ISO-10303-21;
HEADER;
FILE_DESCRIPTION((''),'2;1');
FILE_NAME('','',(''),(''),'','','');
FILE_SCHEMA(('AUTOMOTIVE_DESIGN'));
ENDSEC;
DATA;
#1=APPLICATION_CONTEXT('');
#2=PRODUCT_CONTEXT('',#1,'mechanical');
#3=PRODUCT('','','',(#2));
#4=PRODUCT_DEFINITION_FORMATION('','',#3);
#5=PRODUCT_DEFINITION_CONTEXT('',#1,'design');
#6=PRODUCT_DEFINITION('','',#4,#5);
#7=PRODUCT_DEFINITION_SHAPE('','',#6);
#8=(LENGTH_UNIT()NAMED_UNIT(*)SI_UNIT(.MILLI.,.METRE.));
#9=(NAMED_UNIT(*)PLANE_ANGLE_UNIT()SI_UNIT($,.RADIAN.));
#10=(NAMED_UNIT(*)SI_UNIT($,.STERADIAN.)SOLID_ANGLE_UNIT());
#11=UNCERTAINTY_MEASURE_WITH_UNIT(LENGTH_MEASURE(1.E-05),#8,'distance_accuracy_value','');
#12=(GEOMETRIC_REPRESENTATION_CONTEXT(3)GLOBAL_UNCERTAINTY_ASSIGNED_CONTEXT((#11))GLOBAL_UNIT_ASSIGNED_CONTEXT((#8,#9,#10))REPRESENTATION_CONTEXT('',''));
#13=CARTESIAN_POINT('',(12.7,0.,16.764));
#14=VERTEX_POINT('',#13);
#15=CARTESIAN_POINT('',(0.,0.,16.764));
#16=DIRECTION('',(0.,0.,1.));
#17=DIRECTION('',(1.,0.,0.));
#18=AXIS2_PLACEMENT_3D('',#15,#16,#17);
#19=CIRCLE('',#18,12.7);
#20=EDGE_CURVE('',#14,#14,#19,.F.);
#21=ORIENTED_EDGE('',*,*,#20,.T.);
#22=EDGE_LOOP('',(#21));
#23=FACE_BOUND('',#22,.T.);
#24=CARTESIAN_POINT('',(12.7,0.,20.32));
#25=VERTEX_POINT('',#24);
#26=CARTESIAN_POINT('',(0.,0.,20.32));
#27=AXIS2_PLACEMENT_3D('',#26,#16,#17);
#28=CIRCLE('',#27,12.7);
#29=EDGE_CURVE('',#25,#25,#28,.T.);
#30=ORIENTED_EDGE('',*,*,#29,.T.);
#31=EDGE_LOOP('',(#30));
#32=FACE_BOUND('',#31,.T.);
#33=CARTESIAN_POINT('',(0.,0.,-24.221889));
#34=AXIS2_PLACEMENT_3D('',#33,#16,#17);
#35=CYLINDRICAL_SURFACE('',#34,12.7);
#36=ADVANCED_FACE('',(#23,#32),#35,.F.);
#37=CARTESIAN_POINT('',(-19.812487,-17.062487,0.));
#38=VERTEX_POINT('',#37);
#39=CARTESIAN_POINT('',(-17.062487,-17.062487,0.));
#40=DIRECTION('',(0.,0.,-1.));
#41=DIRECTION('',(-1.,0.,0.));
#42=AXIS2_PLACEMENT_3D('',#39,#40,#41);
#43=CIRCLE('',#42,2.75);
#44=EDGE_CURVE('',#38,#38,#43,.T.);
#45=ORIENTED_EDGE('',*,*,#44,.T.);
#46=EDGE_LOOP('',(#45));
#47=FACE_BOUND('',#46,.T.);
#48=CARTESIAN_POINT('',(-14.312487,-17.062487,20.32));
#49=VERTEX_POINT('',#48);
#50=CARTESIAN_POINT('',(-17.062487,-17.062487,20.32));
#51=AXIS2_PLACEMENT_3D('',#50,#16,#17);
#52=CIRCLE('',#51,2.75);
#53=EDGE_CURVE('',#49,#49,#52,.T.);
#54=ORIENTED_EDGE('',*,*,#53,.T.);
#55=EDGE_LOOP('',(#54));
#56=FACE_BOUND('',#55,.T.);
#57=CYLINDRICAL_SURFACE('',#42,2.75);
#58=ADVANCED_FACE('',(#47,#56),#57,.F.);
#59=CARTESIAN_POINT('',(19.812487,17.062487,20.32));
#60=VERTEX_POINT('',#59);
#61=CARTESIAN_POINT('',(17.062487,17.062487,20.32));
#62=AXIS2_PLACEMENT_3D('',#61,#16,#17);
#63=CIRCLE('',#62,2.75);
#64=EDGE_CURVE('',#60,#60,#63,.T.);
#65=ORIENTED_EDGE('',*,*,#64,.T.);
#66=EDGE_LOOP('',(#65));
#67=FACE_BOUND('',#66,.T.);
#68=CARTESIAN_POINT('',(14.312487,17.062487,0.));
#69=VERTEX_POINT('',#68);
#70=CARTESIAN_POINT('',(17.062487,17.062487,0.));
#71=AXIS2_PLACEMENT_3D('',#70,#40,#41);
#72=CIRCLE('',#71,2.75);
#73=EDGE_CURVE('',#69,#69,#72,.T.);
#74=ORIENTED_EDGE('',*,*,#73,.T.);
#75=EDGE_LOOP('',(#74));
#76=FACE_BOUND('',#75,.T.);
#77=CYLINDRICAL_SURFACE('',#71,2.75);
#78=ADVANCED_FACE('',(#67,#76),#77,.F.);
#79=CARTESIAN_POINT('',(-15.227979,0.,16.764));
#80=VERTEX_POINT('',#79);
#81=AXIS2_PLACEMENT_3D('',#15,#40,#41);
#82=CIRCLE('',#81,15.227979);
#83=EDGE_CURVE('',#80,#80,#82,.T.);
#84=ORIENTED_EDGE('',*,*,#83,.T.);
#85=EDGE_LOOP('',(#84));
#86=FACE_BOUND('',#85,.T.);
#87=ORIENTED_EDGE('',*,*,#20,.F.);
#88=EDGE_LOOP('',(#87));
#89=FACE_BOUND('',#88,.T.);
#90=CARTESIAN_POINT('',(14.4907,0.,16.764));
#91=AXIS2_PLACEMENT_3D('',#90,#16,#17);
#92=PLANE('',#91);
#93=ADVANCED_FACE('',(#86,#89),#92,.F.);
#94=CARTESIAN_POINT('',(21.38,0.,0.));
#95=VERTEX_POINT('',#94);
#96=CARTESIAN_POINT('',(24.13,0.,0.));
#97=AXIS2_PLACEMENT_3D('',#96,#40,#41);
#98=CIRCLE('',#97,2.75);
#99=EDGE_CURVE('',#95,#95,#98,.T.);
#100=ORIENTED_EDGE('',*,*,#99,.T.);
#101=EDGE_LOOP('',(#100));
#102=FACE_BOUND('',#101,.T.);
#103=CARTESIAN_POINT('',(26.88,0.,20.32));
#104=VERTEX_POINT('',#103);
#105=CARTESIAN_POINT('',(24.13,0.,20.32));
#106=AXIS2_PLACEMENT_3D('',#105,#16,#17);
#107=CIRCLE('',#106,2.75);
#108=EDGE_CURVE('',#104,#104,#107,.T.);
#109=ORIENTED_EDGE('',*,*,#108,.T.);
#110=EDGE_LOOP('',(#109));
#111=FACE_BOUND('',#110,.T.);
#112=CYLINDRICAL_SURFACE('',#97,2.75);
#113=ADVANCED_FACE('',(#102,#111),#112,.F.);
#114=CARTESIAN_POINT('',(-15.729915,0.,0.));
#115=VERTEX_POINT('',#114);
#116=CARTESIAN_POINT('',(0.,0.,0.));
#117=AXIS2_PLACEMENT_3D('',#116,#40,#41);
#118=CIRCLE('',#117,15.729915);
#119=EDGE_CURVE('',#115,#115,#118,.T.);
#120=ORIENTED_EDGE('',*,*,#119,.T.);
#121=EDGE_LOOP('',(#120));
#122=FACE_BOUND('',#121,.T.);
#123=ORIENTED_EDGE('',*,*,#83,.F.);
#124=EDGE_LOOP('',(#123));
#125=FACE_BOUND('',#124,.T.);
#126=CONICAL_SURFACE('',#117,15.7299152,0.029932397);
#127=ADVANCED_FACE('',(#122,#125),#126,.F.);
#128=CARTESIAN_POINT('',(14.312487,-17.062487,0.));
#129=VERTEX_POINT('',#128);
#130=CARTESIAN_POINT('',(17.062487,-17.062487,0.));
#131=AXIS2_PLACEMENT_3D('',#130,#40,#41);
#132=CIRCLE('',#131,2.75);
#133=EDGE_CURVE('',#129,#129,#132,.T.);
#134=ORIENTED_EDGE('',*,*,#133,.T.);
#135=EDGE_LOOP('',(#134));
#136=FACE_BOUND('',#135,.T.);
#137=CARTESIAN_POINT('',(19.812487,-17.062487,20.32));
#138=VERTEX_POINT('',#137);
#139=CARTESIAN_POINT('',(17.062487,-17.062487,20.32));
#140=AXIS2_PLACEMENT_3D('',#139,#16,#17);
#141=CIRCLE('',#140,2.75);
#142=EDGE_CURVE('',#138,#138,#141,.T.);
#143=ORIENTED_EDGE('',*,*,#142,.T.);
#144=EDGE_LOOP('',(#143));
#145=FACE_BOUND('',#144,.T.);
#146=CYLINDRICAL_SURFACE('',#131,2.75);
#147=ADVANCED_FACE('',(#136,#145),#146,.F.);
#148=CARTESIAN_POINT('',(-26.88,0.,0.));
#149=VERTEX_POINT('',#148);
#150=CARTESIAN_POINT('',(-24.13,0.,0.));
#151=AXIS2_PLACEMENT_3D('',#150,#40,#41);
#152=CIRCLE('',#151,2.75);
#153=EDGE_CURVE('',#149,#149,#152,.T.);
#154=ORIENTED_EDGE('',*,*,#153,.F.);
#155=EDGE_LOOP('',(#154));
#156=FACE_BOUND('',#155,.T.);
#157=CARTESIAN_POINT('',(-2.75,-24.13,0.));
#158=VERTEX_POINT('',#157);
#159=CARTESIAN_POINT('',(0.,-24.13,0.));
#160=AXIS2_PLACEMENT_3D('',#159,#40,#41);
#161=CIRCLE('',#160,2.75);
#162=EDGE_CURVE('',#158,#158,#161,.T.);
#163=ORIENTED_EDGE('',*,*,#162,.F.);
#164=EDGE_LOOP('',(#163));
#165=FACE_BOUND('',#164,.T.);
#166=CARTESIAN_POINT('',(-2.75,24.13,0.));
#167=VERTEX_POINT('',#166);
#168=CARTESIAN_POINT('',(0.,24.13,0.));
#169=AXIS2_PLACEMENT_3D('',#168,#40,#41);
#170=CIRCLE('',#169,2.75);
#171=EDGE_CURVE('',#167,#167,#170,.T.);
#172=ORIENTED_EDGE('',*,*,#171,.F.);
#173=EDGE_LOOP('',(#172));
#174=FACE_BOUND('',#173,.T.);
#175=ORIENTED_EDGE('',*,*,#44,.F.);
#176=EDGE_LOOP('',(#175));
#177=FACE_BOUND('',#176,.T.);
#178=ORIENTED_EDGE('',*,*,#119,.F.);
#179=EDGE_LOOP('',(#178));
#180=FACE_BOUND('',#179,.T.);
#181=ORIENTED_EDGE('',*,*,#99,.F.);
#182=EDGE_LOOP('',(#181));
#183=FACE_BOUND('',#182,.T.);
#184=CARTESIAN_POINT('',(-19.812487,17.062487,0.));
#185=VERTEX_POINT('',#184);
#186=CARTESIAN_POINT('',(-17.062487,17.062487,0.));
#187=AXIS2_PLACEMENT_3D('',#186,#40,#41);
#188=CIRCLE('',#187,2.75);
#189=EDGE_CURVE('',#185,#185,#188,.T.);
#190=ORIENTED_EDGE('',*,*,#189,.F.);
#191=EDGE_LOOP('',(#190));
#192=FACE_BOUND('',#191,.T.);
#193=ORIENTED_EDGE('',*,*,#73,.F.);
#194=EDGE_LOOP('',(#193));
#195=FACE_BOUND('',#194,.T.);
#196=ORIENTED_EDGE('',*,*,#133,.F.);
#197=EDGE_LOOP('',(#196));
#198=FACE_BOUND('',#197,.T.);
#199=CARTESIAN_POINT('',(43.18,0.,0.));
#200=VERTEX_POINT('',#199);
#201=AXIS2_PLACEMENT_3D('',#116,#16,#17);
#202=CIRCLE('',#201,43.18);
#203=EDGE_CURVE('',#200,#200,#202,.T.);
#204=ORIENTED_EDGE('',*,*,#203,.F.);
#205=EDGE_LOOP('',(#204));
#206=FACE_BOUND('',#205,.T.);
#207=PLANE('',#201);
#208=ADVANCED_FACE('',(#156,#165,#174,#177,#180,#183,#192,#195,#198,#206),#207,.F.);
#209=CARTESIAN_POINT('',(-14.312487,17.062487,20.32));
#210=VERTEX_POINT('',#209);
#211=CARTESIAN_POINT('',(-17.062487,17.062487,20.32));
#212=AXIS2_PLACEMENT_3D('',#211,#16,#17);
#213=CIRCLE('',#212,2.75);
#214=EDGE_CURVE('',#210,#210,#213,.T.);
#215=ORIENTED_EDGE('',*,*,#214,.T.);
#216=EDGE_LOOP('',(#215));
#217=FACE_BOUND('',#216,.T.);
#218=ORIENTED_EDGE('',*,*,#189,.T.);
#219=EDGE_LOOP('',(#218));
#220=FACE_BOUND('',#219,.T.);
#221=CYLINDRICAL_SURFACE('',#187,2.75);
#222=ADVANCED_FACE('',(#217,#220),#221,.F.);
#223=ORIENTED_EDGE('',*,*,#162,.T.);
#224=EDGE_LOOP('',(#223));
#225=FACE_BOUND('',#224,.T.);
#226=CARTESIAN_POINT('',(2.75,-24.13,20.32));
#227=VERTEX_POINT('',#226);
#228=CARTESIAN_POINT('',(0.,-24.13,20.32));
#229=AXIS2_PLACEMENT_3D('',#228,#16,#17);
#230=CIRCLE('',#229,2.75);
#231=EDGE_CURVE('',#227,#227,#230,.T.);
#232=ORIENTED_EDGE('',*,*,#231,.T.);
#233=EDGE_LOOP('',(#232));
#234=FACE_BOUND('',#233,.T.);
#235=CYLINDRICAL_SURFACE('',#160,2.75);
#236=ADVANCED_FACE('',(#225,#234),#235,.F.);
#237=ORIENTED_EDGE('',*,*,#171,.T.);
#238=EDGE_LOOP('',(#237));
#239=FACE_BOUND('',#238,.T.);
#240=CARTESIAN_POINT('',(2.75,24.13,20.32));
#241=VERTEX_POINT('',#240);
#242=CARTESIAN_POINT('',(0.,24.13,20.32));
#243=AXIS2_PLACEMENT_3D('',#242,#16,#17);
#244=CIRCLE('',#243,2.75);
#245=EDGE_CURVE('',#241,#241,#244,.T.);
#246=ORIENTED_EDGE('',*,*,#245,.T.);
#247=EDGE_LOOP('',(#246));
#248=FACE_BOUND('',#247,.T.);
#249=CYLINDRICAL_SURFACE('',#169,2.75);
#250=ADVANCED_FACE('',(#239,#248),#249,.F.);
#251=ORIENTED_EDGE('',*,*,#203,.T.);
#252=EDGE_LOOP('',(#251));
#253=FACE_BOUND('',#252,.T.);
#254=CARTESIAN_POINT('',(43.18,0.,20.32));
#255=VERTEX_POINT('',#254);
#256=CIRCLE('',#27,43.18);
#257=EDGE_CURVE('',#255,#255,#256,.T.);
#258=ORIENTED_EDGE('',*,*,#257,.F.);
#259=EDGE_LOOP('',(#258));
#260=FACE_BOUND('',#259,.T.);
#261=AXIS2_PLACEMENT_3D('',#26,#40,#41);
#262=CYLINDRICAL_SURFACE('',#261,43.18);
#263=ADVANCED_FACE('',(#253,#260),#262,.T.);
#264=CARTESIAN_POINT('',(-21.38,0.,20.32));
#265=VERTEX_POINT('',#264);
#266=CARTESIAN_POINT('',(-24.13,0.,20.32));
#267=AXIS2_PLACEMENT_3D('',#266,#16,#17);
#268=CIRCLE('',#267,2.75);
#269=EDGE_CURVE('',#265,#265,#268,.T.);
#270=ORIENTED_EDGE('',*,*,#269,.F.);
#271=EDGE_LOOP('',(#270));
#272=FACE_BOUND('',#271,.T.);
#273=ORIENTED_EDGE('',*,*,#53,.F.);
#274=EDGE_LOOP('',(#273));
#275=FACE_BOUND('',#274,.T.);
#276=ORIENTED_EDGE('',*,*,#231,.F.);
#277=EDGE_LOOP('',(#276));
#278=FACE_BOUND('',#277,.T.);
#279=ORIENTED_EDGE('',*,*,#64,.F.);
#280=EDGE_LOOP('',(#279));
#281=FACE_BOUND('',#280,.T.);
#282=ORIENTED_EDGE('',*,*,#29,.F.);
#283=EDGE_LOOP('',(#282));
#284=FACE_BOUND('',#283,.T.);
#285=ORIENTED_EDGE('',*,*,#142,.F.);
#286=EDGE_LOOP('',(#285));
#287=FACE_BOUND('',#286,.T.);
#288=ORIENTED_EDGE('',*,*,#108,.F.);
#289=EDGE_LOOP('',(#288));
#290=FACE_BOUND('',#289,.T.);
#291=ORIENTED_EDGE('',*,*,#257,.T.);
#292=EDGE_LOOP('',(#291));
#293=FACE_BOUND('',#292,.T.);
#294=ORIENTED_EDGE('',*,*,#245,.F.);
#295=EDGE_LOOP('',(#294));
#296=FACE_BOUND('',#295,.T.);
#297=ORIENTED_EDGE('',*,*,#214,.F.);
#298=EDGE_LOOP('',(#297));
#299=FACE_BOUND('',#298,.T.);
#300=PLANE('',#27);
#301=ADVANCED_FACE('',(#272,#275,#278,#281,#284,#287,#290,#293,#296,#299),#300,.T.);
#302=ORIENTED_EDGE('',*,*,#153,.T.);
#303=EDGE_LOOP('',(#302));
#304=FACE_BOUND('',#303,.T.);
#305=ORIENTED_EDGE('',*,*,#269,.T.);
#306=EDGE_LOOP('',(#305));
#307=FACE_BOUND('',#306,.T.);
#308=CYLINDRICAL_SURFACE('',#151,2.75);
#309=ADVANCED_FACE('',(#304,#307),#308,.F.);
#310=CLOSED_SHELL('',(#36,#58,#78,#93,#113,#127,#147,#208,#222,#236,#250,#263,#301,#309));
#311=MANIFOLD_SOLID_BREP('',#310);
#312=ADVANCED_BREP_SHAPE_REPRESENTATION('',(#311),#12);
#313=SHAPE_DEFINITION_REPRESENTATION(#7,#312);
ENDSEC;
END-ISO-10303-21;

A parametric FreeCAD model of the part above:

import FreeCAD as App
import Part
import Sketcher

V = App.Vector
Q = App.Units.Quantity

doc = App.newDocument("Part")
params = doc.addObject("Spreadsheet::Sheet", "Params")
for row, (alias, value) in enumerate([
    ("sketch1_diameter", "3.4 in"),
    ("pad1_length", "0.8 in"),
    ("sketch2_height", "0.8 in"),
    ("sketch2_height2", "0.14 in"),
    ("groove_angle", "360 deg"),
    ("hole_diameter", "5.5 mm"),
    ("hole_depth", "0.8 in"),
    ("sketch4_diameter", "1 in"),
    ("sketch4_diameter2", "1.141 in"),
    ("pad2_length", "0.14 in"),
], start=1):
    params.set(f"A{row}", alias)
    params.set(f"B{row}", "=" + value)
    params.setAlias(f"B{row}", alias)

body = doc.addObject("PartDesign::Body", "Body")

# Sketch on XY plane
sketch1 = doc.addObject("Sketcher::SketchObject", "Sketch")
body.addObject(sketch1)
sketch1.AttachmentSupport = (doc.XY_Plane, [""])
sketch1.MapMode = "FlatFace"
sketch1.addGeometry(Part.Circle(V(0, 0, 0), V(0, 0, 1), 43), False)
sketch1.addConstraint(Sketcher.Constraint("Coincident", 0, 3, -1, 1))
sketch1.addConstraint(Sketcher.Constraint("Diameter", 0, Q("3.4 in")))
sketch1.setExpression("Constraints[1]", "Params.sketch1_diameter")
pad1 = doc.addObject("PartDesign::Pad", "Pad")
body.addObject(pad1)
pad1.Profile = sketch1
pad1.setExpression("Length", "Params.pad1_length")

# Sketch on YZ plane
sketch2 = doc.addObject("Sketcher::SketchObject", "Sketch001")
body.addObject(sketch2)
sketch2.AttachmentSupport = (doc.YZ_Plane, [""])
sketch2.MapMode = "FlatFace"
sketch2.addGeometry(Part.LineSegment(V(0, 20.3, 0), V(0, 0, 0)), False)
sketch2.addGeometry(Part.LineSegment(V(0, 0, 0), V(15.7, 0, 0)), False)
sketch2.addGeometry(Part.LineSegment(V(15.7, 0, 0), V(15.2, 16.8, 0)), False)
sketch2.addGeometry(Part.LineSegment(V(15.2, 16.8, 0), V(14.5, 16.8, 0)), False)
sketch2.addGeometry(Part.LineSegment(V(14.5, 16.8, 0), V(14.5, 20.3, 0)), False)
sketch2.addGeometry(Part.LineSegment(V(14.5, 20.3, 0), V(0, 20.3, 0)), False)
sketch2.addConstraint(Sketcher.Constraint("Coincident", 0, 2, 1, 1))
sketch2.addConstraint(Sketcher.Constraint("Coincident", 1, 2, 2, 1))
sketch2.addConstraint(Sketcher.Constraint("Coincident", 2, 2, 3, 1))
sketch2.addConstraint(Sketcher.Constraint("Coincident", 3, 2, 4, 1))
sketch2.addConstraint(Sketcher.Constraint("Coincident", 4, 2, 5, 1))
sketch2.addConstraint(Sketcher.Constraint("Coincident", 5, 2, 0, 1))
sketch2.addConstraint(Sketcher.Constraint("Vertical", 0))
sketch2.addConstraint(Sketcher.Constraint("Horizontal", 1))
sketch2.addConstraint(Sketcher.Constraint("Horizontal", 3))
sketch2.addConstraint(Sketcher.Constraint("Vertical", 4))
sketch2.addConstraint(Sketcher.Constraint("Horizontal", 5))
sketch2.addConstraint(Sketcher.Constraint("Coincident", 0, 2, -1, 1))
sketch2.addConstraint(Sketcher.Constraint("DistanceY", 0, 2, 0, 1, Q("0.8 in")))
sketch2.addConstraint(Sketcher.Constraint("DistanceY", 4, 1, 4, 2, Q("0.14 in")))
sketch2.addConstraint(Sketcher.Constraint("DistanceX", 5, 2, 5, 1, Q("0.5705 in")))
sketch2.addConstraint(Sketcher.Constraint("DistanceX", 3, 2, 3, 1, 0.737279))
sketch2.addConstraint(Sketcher.Constraint("DistanceX", 1, 1, 1, 2, 15.729915))
sketch2.setExpression("Constraints[12]", "Params.sketch2_height")
sketch2.setExpression("Constraints[13]", "Params.sketch2_height2")
groove = doc.addObject("PartDesign::Groove", "Groove")
body.addObject(groove)
groove.Profile = sketch2
groove.ReferenceAxis = (sketch2, ["V_Axis"])
groove.setExpression("Angle", "Params.groove_angle")

# Sketch on XY plane
sketch3 = doc.addObject("Sketcher::SketchObject", "Sketch002")
body.addObject(sketch3)
sketch3.AttachmentSupport = (doc.XY_Plane, [""])
sketch3.MapMode = "FlatFace"
sketch3.addGeometry(Part.Circle(V(0, 24.1, 0), V(0, 0, 1), 2.8), False)
sketch3.addConstraint(Sketcher.Constraint("PointOnObject", 0, 3, -2))
sketch3.addConstraint(Sketcher.Constraint("Diameter", 0, 5.5))
sketch3.addConstraint(Sketcher.Constraint("DistanceY", -1, 1, 0, 3, Q("0.95 in")))
doc.recompute()
hole = doc.addObject("PartDesign::Hole", "Hole")
body.addObject(hole)
hole.Profile = sketch3
hole.ThreadType = "None"
hole.setExpression("Diameter", "Params.hole_diameter")
hole.DepthType = "Dimension"
hole.setExpression("Depth", "Params.hole_depth")
hole.DrillPoint = "Flat"
hole.Reversed = True
doc.recompute()

polarpattern = doc.addObject("PartDesign::PolarPattern", "PolarPattern")
body.addObject(polarpattern)
polarpattern.Originals = [hole]
polarpattern.Axis = (doc.Z_Axis, [""])
polarpattern.Angle = 360
polarpattern.Occurrences = 8
body.Tip = polarpattern

# Sketch on XY plane
sketch4 = doc.addObject("Sketcher::SketchObject", "Sketch003")
body.addObject(sketch4)
sketch4.AttachmentSupport = (doc.XY_Plane, [""])
sketch4.MapMode = "FlatFace"
sketch4.AttachmentOffset = App.Placement(V(0, 0, 0.8 * 25.4), App.Rotation())
sketch4.addGeometry(Part.Circle(V(0, 0, 0), V(0, 0, 1), 14), False)
sketch4.addGeometry(Part.Circle(V(0, 0, 0), V(0, 0, 1), 13), False)
sketch4.addConstraint(Sketcher.Constraint("Coincident", 0, 3, -1, 1))
sketch4.addConstraint(Sketcher.Constraint("Coincident", 1, 3, -1, 1))
sketch4.addConstraint(Sketcher.Constraint("Diameter", 1, Q("1 in")))
sketch4.addConstraint(Sketcher.Constraint("Diameter", 0, Q("1.141 in")))
sketch4.setExpression("Constraints[2]", "Params.sketch4_diameter")
sketch4.setExpression("Constraints[3]", "Params.sketch4_diameter2")
pad2 = doc.addObject("PartDesign::Pad", "Pad001")
body.addObject(pad2)
pad2.Profile = sketch4
pad2.setExpression("Length", "Params.pad2_length")
pad2.Reversed = True

doc.recompute()
